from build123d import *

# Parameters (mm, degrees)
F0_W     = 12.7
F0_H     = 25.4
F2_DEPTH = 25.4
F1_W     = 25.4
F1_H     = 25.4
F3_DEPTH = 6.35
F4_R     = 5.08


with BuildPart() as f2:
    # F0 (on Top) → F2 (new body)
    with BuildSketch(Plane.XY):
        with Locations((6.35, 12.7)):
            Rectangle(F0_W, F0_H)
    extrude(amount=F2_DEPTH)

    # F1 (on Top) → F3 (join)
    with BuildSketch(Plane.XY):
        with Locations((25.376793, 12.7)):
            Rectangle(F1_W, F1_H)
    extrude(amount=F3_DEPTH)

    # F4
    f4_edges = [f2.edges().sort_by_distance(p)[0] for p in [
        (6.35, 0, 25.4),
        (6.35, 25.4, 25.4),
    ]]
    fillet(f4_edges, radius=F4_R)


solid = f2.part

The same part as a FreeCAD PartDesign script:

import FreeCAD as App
import Part
import Sketcher

V = App.Vector
Q = App.Units.Quantity


def edges_at(feature, points):
    """Names of the edges that pass closest to the given points."""
    edges = feature.Shape.Edges
    near = lambda p: min(range(len(edges)), key=lambda i: edges[i].distToShape(Part.Vertex(*p))[0])
    return sorted({f"Edge{near(p) + 1}" for p in points})

doc = App.newDocument("Part")
body = doc.addObject("PartDesign::Body", "Body")

sketch1 = doc.addObject("Sketcher::SketchObject", "Sketch")
body.addObject(sketch1)
sketch1.AttachmentSupport = (doc.XY_Plane, [""])
sketch1.MapMode = "FlatFace"
sketch1.addGeometry([
    Part.LineSegment(V(0, 25, 0), V(0, 0, 0)),
    Part.LineSegment(V(0, 0, 0), V(13, 0, 0)),
    Part.LineSegment(V(13, 0, 0), V(13, 25, 0)),
    Part.LineSegment(V(13, 25, 0), V(0, 25, 0)),
], False)
sketch1.addConstraint([
    Sketcher.Constraint("Coincident", 0, 2, 1, 1),
    Sketcher.Constraint("Coincident", 1, 2, 2, 1),
    Sketcher.Constraint("Coincident", 2, 2, 3, 1),
    Sketcher.Constraint("Coincident", 3, 2, 0, 1),
    Sketcher.Constraint("Vertical", 0),
    Sketcher.Constraint("Horizontal", 1),
    Sketcher.Constraint("Vertical", 2),
    Sketcher.Constraint("Horizontal", 3),
    Sketcher.Constraint("Coincident", 0, 2, -1, 1),
    Sketcher.Constraint("DistanceY", 0, 2, 0, 1, Q("1 in")),
    Sketcher.Constraint("DistanceX", 1, 1, 1, 2, Q("0.5 in")),
])
pad1 = doc.addObject("PartDesign::Pad", "Pad")
body.addObject(pad1)
pad1.Profile = sketch1
pad1.Length = Q("1 in")

sketch2 = doc.addObject("Sketcher::SketchObject", "Sketch001")
body.addObject(sketch2)
sketch2.AttachmentSupport = (doc.XY_Plane, [""])
sketch2.MapMode = "FlatFace"
sketch2.addGeometry([
    Part.LineSegment(V(13, 25, 0), V(13, 0, 0)),
    Part.LineSegment(V(13, 0, 0), V(38, 0, 0)),
    Part.LineSegment(V(38, 0, 0), V(38, 25, 0)),
    Part.LineSegment(V(38, 25, 0), V(13, 25, 0)),
], False)
sketch2.addConstraint([
    Sketcher.Constraint("Coincident", 0, 2, 1, 1),
    Sketcher.Constraint("Coincident", 1, 2, 2, 1),
    Sketcher.Constraint("Coincident", 2, 2, 3, 1),
    Sketcher.Constraint("Coincident", 3, 2, 0, 1),
    Sketcher.Constraint("Vertical", 0),
    Sketcher.Constraint("Horizontal", 1),
    Sketcher.Constraint("Vertical", 2),
    Sketcher.Constraint("Horizontal", 3),
    Sketcher.Constraint("PointOnObject", 0, 2, -1),
    Sketcher.Constraint("Equal", 3, 0),
    Sketcher.Constraint("DistanceX", 1, 1, 1, 2, Q("1 in")),
    Sketcher.Constraint("DistanceX", -1, 1, 0, 2, 12.676793),
])
pad2 = doc.addObject("PartDesign::Pad", "Pad001")
body.addObject(pad2)
pad2.Profile = sketch2
pad2.Length = Q("0.25 in")
doc.recompute()

fillet = doc.addObject("PartDesign::Fillet", "Fillet")
body.addObject(fillet)
fillet.Base = (pad2, edges_at(pad2, [(6.35, 0, 25.4), (6.35, 25.4, 25.4)]))
fillet.Radius = Q("0.2 in")

doc.recompute()
